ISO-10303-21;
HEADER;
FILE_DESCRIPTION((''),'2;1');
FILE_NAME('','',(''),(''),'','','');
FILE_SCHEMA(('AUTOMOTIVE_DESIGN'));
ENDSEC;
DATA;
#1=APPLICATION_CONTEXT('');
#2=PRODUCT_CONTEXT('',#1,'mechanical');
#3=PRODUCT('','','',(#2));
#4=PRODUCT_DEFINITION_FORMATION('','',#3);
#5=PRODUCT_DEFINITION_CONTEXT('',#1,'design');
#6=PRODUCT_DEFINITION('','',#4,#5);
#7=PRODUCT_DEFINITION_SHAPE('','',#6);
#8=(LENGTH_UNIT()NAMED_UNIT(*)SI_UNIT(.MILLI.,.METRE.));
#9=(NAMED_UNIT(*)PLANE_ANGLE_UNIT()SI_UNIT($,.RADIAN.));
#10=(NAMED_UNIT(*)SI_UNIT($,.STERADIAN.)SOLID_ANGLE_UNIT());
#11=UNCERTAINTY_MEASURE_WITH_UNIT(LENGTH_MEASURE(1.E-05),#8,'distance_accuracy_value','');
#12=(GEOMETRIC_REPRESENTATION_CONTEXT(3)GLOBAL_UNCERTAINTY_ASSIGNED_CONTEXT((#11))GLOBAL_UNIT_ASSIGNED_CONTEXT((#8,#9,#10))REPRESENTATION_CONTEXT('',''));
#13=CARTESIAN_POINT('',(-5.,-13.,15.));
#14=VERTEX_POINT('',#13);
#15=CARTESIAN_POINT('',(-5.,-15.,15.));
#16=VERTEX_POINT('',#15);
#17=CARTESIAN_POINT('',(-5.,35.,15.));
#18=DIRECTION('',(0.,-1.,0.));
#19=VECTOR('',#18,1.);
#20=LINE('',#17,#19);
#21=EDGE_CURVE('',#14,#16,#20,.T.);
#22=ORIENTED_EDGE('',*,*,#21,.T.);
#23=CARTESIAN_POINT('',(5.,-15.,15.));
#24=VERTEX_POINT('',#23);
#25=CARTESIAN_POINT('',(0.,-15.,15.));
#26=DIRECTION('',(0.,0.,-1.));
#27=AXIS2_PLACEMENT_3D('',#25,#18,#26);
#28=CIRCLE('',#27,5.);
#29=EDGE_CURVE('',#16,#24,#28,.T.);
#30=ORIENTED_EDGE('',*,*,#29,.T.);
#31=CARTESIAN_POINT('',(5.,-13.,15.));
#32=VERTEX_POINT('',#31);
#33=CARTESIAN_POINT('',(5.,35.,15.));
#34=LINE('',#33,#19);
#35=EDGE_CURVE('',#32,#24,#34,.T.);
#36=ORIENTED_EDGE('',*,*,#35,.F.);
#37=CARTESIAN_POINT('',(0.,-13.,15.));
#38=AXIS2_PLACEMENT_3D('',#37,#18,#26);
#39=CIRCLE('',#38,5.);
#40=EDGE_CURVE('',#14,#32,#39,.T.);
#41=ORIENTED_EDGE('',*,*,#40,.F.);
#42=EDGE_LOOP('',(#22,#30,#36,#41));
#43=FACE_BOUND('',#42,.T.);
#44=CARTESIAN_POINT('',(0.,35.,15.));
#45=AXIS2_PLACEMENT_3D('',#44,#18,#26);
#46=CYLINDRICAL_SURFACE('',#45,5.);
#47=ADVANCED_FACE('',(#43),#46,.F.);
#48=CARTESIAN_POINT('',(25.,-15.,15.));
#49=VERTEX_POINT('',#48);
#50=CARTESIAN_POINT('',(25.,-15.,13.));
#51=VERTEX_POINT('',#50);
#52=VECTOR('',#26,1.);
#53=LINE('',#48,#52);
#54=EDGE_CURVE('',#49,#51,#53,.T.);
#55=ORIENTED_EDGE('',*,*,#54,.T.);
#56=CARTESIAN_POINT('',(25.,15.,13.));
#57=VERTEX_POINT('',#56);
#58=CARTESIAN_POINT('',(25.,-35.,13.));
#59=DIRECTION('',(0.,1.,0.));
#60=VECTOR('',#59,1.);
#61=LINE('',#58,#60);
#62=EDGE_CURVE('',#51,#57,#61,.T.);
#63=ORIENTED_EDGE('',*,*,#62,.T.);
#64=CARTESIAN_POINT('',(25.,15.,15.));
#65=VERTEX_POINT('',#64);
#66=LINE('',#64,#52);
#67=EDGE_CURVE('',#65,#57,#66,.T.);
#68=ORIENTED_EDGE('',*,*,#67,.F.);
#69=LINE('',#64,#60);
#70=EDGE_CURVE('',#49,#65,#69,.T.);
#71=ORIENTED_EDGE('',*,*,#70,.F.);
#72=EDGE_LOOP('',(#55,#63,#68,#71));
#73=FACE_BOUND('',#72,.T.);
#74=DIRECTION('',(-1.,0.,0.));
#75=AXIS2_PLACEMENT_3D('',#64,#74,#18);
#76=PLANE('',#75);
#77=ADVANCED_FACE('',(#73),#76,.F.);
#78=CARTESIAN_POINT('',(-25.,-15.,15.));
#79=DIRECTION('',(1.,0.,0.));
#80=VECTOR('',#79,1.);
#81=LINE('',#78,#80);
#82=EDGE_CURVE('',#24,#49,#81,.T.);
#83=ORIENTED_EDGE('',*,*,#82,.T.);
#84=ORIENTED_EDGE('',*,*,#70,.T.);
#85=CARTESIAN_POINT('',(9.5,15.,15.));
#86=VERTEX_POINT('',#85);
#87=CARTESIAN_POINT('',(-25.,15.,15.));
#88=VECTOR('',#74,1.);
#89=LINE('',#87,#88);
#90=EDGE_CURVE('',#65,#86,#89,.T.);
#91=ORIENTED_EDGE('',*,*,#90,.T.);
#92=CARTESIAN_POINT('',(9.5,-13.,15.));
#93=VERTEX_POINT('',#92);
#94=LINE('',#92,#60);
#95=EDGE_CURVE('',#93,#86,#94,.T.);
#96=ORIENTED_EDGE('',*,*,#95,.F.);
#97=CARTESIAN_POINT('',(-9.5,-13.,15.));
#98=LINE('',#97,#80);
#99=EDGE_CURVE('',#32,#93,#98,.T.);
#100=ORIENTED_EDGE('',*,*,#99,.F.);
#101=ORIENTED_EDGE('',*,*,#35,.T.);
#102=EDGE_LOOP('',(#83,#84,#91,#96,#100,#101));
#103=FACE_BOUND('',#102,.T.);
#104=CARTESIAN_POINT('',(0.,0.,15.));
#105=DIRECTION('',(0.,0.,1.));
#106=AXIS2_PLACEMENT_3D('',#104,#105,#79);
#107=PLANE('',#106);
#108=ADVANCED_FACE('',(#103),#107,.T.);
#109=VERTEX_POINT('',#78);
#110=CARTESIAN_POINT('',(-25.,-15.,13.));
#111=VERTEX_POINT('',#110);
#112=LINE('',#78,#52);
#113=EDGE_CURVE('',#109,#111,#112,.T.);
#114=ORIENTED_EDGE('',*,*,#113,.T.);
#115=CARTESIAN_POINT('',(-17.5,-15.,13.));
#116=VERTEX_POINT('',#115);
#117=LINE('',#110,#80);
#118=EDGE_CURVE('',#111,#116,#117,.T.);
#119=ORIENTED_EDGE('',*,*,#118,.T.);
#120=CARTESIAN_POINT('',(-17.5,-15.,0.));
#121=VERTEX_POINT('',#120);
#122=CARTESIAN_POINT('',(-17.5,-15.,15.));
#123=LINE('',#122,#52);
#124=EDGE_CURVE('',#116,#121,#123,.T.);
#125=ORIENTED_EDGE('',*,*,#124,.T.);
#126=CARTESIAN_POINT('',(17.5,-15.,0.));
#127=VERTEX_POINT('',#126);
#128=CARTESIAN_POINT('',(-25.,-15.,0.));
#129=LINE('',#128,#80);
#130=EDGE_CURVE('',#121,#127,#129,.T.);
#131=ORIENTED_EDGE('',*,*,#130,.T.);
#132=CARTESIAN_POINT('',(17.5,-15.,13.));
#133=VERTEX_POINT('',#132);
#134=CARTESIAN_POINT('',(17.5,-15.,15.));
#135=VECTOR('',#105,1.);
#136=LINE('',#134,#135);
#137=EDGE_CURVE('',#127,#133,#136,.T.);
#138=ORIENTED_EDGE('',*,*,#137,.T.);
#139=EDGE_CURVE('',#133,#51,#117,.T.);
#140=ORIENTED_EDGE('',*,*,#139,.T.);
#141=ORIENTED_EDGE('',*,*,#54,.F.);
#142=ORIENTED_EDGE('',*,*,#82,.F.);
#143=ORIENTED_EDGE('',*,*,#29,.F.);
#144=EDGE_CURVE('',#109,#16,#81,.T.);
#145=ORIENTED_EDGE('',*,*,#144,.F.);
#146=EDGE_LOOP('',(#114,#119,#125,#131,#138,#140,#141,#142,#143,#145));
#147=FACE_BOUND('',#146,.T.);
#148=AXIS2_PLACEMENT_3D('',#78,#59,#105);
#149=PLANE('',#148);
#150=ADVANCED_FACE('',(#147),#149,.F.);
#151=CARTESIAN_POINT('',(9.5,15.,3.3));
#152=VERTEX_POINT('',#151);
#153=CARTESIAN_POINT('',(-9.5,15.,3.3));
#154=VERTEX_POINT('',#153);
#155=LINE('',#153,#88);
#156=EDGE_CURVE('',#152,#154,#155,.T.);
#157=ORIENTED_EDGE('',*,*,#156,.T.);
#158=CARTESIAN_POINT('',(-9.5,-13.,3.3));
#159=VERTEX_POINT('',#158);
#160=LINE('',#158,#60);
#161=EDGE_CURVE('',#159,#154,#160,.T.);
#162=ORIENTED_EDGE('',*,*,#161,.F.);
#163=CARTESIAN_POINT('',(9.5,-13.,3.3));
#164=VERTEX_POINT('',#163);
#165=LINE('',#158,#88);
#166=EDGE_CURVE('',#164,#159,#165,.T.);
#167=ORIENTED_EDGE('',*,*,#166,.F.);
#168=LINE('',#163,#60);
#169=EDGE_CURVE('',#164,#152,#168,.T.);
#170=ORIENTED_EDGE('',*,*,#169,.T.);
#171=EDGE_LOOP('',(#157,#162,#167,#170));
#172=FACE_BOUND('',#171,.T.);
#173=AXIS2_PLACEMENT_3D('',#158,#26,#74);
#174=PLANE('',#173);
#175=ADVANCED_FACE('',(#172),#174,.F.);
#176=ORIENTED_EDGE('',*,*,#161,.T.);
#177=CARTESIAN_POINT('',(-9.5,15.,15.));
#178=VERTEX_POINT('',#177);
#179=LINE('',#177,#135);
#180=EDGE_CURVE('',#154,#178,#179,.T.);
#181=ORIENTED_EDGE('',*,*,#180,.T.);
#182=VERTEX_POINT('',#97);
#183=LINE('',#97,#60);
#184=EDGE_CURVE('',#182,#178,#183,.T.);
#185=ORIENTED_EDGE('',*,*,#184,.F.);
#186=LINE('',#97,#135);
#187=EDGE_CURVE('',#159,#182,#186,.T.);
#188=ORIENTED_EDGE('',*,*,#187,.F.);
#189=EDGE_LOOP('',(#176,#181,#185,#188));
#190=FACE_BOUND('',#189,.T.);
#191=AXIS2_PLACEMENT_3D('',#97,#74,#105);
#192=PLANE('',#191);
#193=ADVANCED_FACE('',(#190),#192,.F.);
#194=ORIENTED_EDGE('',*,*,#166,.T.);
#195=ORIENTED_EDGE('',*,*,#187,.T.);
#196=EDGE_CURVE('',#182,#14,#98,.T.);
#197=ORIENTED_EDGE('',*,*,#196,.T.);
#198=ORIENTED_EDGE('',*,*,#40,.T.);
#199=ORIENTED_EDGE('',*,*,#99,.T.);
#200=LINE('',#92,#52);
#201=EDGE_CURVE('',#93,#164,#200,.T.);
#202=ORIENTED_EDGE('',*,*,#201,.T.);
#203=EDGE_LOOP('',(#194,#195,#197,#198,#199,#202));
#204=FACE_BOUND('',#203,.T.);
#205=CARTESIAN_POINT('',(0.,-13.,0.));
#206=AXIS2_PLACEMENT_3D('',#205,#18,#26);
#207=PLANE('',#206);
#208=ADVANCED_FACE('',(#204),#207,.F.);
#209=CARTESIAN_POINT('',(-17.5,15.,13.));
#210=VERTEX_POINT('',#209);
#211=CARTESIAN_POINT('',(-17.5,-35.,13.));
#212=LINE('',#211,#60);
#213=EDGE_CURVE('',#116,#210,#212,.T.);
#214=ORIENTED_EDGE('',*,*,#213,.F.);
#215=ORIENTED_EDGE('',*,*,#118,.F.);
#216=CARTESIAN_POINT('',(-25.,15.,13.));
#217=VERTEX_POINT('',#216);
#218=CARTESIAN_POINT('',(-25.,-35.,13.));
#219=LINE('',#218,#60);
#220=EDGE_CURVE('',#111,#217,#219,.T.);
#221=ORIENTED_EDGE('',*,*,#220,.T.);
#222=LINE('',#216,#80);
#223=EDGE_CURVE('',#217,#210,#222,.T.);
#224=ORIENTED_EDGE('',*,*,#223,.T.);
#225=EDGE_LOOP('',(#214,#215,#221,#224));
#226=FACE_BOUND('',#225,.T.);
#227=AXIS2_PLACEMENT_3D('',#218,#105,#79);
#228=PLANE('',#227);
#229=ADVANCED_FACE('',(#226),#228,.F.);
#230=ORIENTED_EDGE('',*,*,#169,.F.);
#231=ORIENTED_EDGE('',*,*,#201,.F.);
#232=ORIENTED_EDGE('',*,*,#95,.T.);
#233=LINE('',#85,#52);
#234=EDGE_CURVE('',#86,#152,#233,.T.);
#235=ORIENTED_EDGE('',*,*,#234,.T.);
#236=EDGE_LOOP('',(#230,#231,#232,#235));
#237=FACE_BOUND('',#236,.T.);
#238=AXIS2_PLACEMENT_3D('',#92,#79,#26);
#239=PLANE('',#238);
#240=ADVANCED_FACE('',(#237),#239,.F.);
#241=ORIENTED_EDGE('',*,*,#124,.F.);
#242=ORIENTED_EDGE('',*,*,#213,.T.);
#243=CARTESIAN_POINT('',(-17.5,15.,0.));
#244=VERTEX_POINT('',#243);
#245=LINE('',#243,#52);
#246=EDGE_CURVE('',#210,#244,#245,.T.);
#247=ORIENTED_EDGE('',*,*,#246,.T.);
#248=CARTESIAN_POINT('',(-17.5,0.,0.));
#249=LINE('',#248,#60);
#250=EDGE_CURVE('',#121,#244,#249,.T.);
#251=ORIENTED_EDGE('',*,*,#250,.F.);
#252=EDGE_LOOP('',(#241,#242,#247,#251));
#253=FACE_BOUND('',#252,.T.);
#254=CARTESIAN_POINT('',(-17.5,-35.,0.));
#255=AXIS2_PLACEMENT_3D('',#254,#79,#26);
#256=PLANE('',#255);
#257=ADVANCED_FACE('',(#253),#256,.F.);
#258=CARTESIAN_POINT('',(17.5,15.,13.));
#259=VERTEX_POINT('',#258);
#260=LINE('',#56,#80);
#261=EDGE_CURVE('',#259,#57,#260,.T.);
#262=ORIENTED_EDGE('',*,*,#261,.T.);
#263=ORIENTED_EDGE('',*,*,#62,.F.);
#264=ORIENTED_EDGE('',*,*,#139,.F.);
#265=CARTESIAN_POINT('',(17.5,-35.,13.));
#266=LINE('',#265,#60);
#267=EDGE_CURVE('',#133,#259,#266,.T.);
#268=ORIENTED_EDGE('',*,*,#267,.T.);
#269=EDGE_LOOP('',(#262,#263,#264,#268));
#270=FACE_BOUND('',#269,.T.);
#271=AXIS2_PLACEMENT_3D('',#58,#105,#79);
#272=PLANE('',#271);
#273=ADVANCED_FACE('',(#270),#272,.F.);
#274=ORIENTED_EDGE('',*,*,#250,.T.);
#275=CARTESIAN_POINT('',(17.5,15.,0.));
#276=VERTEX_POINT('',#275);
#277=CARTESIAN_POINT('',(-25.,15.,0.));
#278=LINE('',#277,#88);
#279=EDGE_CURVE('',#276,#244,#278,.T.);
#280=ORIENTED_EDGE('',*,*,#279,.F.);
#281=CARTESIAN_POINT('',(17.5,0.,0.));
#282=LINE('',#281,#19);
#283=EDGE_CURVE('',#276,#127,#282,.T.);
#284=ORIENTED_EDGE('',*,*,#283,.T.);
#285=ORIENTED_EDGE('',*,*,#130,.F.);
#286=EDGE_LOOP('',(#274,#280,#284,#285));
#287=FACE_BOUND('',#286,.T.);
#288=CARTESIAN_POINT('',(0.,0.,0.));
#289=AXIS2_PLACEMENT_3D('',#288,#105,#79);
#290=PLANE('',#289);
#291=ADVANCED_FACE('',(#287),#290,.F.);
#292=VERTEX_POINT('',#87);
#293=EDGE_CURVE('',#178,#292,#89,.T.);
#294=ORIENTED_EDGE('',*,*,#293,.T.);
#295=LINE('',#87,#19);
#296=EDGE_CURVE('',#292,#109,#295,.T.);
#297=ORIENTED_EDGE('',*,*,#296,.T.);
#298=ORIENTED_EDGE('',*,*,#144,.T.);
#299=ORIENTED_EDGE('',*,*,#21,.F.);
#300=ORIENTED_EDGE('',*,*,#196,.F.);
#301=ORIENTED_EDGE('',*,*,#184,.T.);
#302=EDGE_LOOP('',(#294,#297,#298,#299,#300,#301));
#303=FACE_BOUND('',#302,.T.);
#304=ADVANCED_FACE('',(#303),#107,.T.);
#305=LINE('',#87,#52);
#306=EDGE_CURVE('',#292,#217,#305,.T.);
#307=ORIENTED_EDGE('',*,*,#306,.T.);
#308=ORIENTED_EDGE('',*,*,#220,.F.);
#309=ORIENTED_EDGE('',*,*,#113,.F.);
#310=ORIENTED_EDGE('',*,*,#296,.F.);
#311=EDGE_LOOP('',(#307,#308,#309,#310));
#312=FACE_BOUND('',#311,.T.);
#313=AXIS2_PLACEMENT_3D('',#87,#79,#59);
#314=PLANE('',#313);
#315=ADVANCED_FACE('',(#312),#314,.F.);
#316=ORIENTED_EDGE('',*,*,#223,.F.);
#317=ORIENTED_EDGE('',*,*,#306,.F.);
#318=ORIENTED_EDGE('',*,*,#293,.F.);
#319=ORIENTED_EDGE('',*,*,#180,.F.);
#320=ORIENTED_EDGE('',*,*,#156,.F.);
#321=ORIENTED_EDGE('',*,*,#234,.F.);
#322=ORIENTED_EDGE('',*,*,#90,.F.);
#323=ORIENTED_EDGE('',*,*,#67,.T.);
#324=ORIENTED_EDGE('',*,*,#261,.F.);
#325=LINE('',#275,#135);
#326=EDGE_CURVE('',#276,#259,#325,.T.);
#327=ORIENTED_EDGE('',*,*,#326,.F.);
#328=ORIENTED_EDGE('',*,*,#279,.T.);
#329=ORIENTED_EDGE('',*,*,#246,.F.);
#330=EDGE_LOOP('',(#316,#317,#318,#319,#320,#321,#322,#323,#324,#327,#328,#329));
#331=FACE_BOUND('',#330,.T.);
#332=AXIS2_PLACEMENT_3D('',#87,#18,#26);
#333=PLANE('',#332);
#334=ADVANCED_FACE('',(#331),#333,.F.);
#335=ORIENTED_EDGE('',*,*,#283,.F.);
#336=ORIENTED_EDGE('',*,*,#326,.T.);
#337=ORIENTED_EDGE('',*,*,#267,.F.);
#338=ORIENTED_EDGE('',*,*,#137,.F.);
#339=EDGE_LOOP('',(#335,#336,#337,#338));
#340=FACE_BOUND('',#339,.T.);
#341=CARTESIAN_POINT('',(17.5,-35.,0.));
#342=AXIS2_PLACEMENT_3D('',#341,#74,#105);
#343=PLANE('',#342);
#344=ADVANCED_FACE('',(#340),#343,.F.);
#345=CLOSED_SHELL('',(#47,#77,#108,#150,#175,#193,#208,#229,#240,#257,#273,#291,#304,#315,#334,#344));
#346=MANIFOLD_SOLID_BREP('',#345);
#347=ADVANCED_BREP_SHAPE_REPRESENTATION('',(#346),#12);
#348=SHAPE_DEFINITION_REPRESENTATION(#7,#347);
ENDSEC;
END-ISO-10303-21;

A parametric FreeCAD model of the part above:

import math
import FreeCAD as App
import Part
import Sketcher

V = App.Vector
Q = App.Units.Quantity


def add_polygon(sketch, points):
    """Adds a closed chain of lines whose ends are joined by coincident constraints."""
    first, n = sketch.GeometryCount, len(points)
    for a, b in zip(points, points[1:] + points[:1]):
        sketch.addGeometry(Part.LineSegment(App.Vector(*a, 0), App.Vector(*b, 0)), False)
    for i in range(n):
        sketch.addConstraint(Sketcher.Constraint("Coincident", first + i, 2, first + (i + 1) % n, 1))

doc = App.newDocument("Part")
body = doc.addObject("PartDesign::Body", "Body")

sketch1 = doc.addObject("Sketcher::SketchObject", "Sketch")
body.addObject(sketch1)
sketch1.AttachmentSupport = (doc.XY_Plane, [""])
sketch1.MapMode = "FlatFace"
add_polygon(sketch1, [(-25, 15), (-25, -15), (25, -15), (25, 15)])
sketch1.addConstraint(Sketcher.Constraint("Vertical", 0))
sketch1.addConstraint(Sketcher.Constraint("Horizontal", 1))
sketch1.addConstraint(Sketcher.Constraint("Vertical", 2))
sketch1.addConstraint(Sketcher.Constraint("Horizontal", 3))
sketch1.addConstraint(Sketcher.Constraint("Symmetric", 0, 2, 2, 2, -1, 1))
sketch1.addConstraint(Sketcher.Constraint("DistanceX", 1, 1, 1, 2, Q("50 mm")))
sketch1.addConstraint(Sketcher.Constraint("DistanceY", 0, 2, 0, 1, Q("30 mm")))
pad1 = doc.addObject("PartDesign::Pad", "Pad")
body.addObject(pad1)
pad1.Profile = sketch1
pad1.Length = 15

sketch2 = doc.addObject("Sketcher::SketchObject", "Sketch001")
body.addObject(sketch2)
sketch2.AttachmentSupport = (doc.XZ_Plane, [""])
sketch2.MapMode = "FlatFace"
sketch2.AttachmentOffset = App.Placement(V(0, 0, -15), App.Rotation())
add_polygon(sketch2, [(-10, 3), (-10, 15), (10, 15), (10, 3)])
sketch2.addConstraint(Sketcher.Constraint("Vertical", 0))
sketch2.addConstraint(Sketcher.Constraint("Horizontal", 1))
sketch2.addConstraint(Sketcher.Constraint("Vertical", 2))
sketch2.addConstraint(Sketcher.Constraint("Horizontal", 3))
sketch2.addConstraint(Sketcher.Constraint("DistanceX", 1, 1, 1, 2, Q("19 mm")))
sketch2.addConstraint(Sketcher.Constraint("DistanceY", 0, 1, 0, 2, Q("11.7 mm")))
sketch2.addConstraint(Sketcher.Constraint("DistanceY", -1, 1, 0, 2, Q("15 mm")))
sketch2.addConstraint(Sketcher.Constraint("DistanceX", 0, 2, -1, 1, Q("9.5 mm")))
pocket1 = doc.addObject("PartDesign::Pocket", "Pocket")
body.addObject(pocket1)
pocket1.Profile = sketch2
pocket1.Length = 28
pocket1.Reversed = True

sketch3 = doc.addObject("Sketcher::SketchObject", "Sketch002")
body.addObject(sketch3)
sketch3.AttachmentSupport = (doc.XZ_Plane, [""])
sketch3.MapMode = "FlatFace"
sketch3.AttachmentOffset = App.Placement(V(0, 0, -15), App.Rotation())
add_polygon(sketch3, [(-25, 0), (-25, 13), (-18, 13), (-18, 0)])
sketch3.addConstraint(Sketcher.Constraint("Vertical", 0))
sketch3.addConstraint(Sketcher.Constraint("Horizontal", 1))
sketch3.addConstraint(Sketcher.Constraint("Vertical", 2))
sketch3.addConstraint(Sketcher.Constraint("Horizontal", 3))
sketch3.addConstraint(Sketcher.Constraint("PointOnObject", 2, 2, -1))
sketch3.addConstraint(Sketcher.Constraint("DistanceY", 0, 1, 0, 2, Q("13 mm")))
sketch3.addConstraint(Sketcher.Constraint("DistanceX", 1, 1, 1, 2, Q("7.5 mm")))
sketch3.addConstraint(Sketcher.Constraint("DistanceX", 0, 2, -1, 1, Q("25 mm")))
pocket2 = doc.addObject("PartDesign::Pocket", "Pocket001")
body.addObject(pocket2)
pocket2.Profile = sketch3
pocket2.Length = 50
pocket2.Reversed = True

sketch4 = doc.addObject("Sketcher::SketchObject", "Sketch003")
body.addObject(sketch4)
sketch4.AttachmentSupport = (doc.XZ_Plane, [""])
sketch4.MapMode = "FlatFace"
sketch4.AttachmentOffset = App.Placement(V(0, 0, -15), App.Rotation())
add_polygon(sketch4, [(18, 0), (18, 13), (25, 13), (25, 0)])
sketch4.addConstraint(Sketcher.Constraint("Vertical", 0))
sketch4.addConstraint(Sketcher.Constraint("Horizontal", 1))
sketch4.addConstraint(Sketcher.Constraint("Vertical", 2))
sketch4.addConstraint(Sketcher.Constraint("Horizontal", 3))
sketch4.addConstraint(Sketcher.Constraint("PointOnObject", 2, 2, -1))
sketch4.addConstraint(Sketcher.Constraint("DistanceY", 0, 1, 0, 2, Q("13 mm")))
sketch4.addConstraint(Sketcher.Constraint("DistanceX", 1, 1, 1, 2, Q("7.5 mm")))
sketch4.addConstraint(Sketcher.Constraint("DistanceX", -1, 1, 1, 2, Q("25 mm")))
pocket3 = doc.addObject("PartDesign::Pocket", "Pocket002")
body.addObject(pocket3)
pocket3.Profile = sketch4
pocket3.Length = 50
pocket3.Reversed = True

sketch5 = doc.addObject("Sketcher::SketchObject", "Sketch004")
body.addObject(sketch5)
sketch5.AttachmentSupport = (doc.XZ_Plane, [""])
sketch5.MapMode = "FlatFace"
sketch5.AttachmentOffset = App.Placement(V(0, 0, 15), App.Rotation())
sketch5.addGeometry(Part.LineSegment(V(5, 15, 0), V(-5, 15, 0)), False)
sketch5.addGeometry(Part.ArcOfCircle(Part.Circle(V(0, 15, 0), V(0, 0, 1), 5), math.radians(180), math.radians(360)), False)
sketch5.addConstraint(Sketcher.Constraint("Coincident", 0, 1, 1, 2))
sketch5.addConstraint(Sketcher.Constraint("Coincident", 1, 1, 0, 2))
sketch5.addConstraint(Sketcher.Constraint("Horizontal", 0))
sketch5.addConstraint(Sketcher.Constraint("PointOnObject", 1, 3, -2))
sketch5.addConstraint(Sketcher.Constraint("Horizontal", 1, 3, 0, 1))
sketch5.addConstraint(Sketcher.Constraint("Radius", 1, Q("5 mm")))
sketch5.addConstraint(Sketcher.Constraint("DistanceY", -1, 1, 1, 3, Q("15 mm")))
pocket4 = doc.addObject("PartDesign::Pocket", "Pocket003")
body.addObject(pocket4)
pocket4.Profile = sketch5
pocket4.Length = 50

doc.recompute()
